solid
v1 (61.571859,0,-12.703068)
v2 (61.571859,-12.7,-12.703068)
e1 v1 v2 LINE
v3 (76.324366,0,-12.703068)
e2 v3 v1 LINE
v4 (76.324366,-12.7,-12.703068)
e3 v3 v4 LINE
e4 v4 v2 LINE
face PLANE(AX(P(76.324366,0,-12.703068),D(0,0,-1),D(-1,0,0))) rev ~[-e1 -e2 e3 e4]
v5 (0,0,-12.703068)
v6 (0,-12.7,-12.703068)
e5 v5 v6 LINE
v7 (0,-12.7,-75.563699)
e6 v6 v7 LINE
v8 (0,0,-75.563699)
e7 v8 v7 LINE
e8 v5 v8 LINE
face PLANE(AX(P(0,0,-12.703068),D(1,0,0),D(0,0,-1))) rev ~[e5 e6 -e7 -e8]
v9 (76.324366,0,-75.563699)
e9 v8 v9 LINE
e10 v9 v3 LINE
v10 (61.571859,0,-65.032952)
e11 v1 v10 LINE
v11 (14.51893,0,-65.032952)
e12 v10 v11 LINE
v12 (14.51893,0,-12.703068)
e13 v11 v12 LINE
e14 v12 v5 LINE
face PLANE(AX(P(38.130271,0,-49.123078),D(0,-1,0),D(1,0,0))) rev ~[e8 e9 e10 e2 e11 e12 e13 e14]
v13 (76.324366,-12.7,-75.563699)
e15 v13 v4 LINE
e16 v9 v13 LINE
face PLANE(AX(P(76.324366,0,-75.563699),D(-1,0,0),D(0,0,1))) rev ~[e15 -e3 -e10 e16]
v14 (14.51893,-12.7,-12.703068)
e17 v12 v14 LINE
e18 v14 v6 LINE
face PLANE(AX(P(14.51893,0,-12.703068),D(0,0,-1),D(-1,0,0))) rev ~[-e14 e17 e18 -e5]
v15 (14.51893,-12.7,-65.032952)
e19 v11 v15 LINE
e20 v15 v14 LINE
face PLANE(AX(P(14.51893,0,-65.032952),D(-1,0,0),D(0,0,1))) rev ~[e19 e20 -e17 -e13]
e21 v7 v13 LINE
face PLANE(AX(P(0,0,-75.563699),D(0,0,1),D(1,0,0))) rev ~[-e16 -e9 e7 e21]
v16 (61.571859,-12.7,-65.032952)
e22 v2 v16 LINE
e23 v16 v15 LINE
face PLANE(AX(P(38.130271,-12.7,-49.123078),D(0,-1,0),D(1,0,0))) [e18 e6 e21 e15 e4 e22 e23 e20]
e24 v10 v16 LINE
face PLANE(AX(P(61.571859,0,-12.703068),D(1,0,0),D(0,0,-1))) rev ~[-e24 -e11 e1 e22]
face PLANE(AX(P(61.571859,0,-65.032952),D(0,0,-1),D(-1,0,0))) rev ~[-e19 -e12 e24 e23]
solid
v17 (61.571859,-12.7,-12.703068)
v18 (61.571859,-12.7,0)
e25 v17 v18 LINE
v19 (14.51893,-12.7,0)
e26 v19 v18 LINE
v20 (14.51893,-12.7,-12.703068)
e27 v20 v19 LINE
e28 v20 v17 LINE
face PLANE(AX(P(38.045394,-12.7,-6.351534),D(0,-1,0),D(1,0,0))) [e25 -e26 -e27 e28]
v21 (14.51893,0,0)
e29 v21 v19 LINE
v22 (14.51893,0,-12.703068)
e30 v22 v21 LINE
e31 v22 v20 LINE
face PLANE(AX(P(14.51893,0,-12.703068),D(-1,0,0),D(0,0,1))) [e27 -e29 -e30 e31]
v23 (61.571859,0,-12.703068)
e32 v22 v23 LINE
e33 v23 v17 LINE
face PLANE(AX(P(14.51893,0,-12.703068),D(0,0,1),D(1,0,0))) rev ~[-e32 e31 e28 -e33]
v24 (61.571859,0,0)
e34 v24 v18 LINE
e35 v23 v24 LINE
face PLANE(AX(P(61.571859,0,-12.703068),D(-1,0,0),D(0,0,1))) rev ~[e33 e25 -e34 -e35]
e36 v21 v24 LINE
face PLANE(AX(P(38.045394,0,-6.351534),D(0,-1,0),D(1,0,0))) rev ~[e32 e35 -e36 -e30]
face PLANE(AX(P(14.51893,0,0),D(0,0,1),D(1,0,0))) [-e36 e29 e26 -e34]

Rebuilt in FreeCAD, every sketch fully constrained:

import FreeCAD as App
import Part
import Sketcher
from FreeCAD import Vector
Q = App.Units.Quantity

doc = App.newDocument("Part")
params = doc.addObject("Spreadsheet::Sheet", "Params")
for row, (alias, value) in enumerate([
    ("pad1_length", "0.5 in"),
    ("pad2_length", "0.5 in"),
], start=1):
    params.set(f"A{row}", alias)
    params.set(f"B{row}", "=" + value)
    params.setAlias(f"B{row}", alias)

body = doc.addObject("PartDesign::Body", "Body")

# Sketch on XZ plane
sketch1 = body.newObject("Sketcher::SketchObject", "Sketch")
sketch1.AttachmentSupport = (doc.getObject("XZ_Plane"), [""])
sketch1.MapMode = "FlatFace"
sketch1.addGeometry(Part.LineSegment(Vector(14.51893, -12.703068, 0), Vector(0, -12.703068, 0)), False)
sketch1.addGeometry(Part.LineSegment(Vector(0, -12.703068, 0), Vector(0, -75.563699, 0)), False)
sketch1.addGeometry(Part.LineSegment(Vector(0, -75.563699, 0), Vector(76.324366, -75.563699, 0)), False)
sketch1.addGeometry(Part.LineSegment(Vector(76.324366, -75.563699, 0), Vector(76.324366, -12.703068, 0)), False)
sketch1.addGeometry(Part.LineSegment(Vector(76.324366, -12.703068, 0), Vector(61.571859, -12.703068, 0)), False)
sketch1.addGeometry(Part.LineSegment(Vector(61.571859, -12.703068, 0), Vector(61.571859, -65.032952, 0)), False)
sketch1.addGeometry(Part.LineSegment(Vector(61.571859, -65.032952, 0), Vector(14.51893, -65.032952, 0)), False)
sketch1.addGeometry(Part.LineSegment(Vector(14.51893, -65.032952, 0), Vector(14.51893, -12.703068, 0)), False)
sketch1.addConstraint(Sketcher.Constraint("Coincident", 0, 2, 1, 1))
sketch1.addConstraint(Sketcher.Constraint("Coincident", 1, 2, 2, 1))
sketch1.addConstraint(Sketcher.Constraint("Coincident", 2, 2, 3, 1))
sketch1.addConstraint(Sketcher.Constraint("Coincident", 3, 2, 4, 1))
sketch1.addConstraint(Sketcher.Constraint("Coincident", 4, 2, 5, 1))
sketch1.addConstraint(Sketcher.Constraint("Coincident", 5, 2, 6, 1))
sketch1.addConstraint(Sketcher.Constraint("Coincident", 6, 2, 7, 1))
sketch1.addConstraint(Sketcher.Constraint("Coincident", 7, 2, 0, 1))
sketch1.addConstraint(Sketcher.Constraint("Horizontal", 0))
sketch1.addConstraint(Sketcher.Constraint("Vertical", 1))
sketch1.addConstraint(Sketcher.Constraint("Horizontal", 2))
sketch1.addConstraint(Sketcher.Constraint("Vertical", 3))
sketch1.addConstraint(Sketcher.Constraint("Horizontal", 4))
sketch1.addConstraint(Sketcher.Constraint("Vertical", 5))
sketch1.addConstraint(Sketcher.Constraint("Horizontal", 6))
sketch1.addConstraint(Sketcher.Constraint("Vertical", 7))
sketch1.addConstraint(Sketcher.Constraint("PointOnObject", 0, 2, -2))
sketch1.addConstraint(Sketcher.Constraint("Horizontal", 0, 2, 3, 2))
sketch1.addConstraint(Sketcher.Constraint("DistanceX", 0, 2, 0, 1, Q("14.51893 mm")))
sketch1.addConstraint(Sketcher.Constraint("DistanceX", 6, 2, 6, 1, Q("47.052929 mm")))
sketch1.addConstraint(Sketcher.Constraint("DistanceY", 1, 2, 1, 1, Q("62.860631 mm")))
sketch1.addConstraint(Sketcher.Constraint("DistanceY", 1, 2, -1, 1, Q("75.563699 mm")))
sketch1.addConstraint(Sketcher.Constraint("DistanceX", 2, 1, 2, 2, Q("76.324366 mm")))
sketch1.addConstraint(Sketcher.Constraint("DistanceY", 5, 2, 5, 1, Q("52.329884 mm")))
pad1 = body.newObject("PartDesign::Pad", "Pad")
pad1.Profile = sketch1
pad1.setExpression("Length", "Params.pad1_length")
body2 = doc.addObject("PartDesign::Body", "Body001")

# Sketch on XZ plane
sketch2 = body2.newObject("Sketcher::SketchObject", "Sketch001")
sketch2.AttachmentSupport = (doc.getObject("XZ_Plane001"), [""])
sketch2.MapMode = "FlatFace"
sketch2.addGeometry(Part.LineSegment(Vector(14.51893, 0, 0), Vector(14.51893, -12.703068, 0)), False)
sketch2.addGeometry(Part.LineSegment(Vector(14.51893, -12.703068, 0), Vector(61.571859, -12.703068, 0)), False)
sketch2.addGeometry(Part.LineSegment(Vector(61.571859, -12.703068, 0), Vector(61.571859, 0, 0)), False)
sketch2.addGeometry(Part.LineSegment(Vector(61.571859, 0, 0), Vector(14.51893, 0, 0)), False)
sketch2.addConstraint(Sketcher.Constraint("Coincident", 0, 2, 1, 1))
sketch2.addConstraint(Sketcher.Constraint("Coincident", 1, 2, 2, 1))
sketch2.addConstraint(Sketcher.Constraint("Coincident", 2, 2, 3, 1))
sketch2.addConstraint(Sketcher.Constraint("Coincident", 3, 2, 0, 1))
sketch2.addConstraint(Sketcher.Constraint("Vertical", 0))
sketch2.addConstraint(Sketcher.Constraint("Horizontal", 1))
sketch2.addConstraint(Sketcher.Constraint("Vertical", 2))
sketch2.addConstraint(Sketcher.Constraint("Horizontal", 3))
sketch2.addConstraint(Sketcher.Constraint("PointOnObject", 2, 2, -1))
sketch2.addConstraint(Sketcher.Constraint("DistanceX", 1, 1, 1, 2, Q("47.052929 mm")))
sketch2.addConstraint(Sketcher.Constraint("DistanceY", 0, 2, 0, 1, Q("12.703068 mm")))
sketch2.addConstraint(Sketcher.Constraint("DistanceX", -1, 1, 0, 2, Q("14.51893 mm")))
pad2 = body2.newObject("PartDesign::Pad", "Pad001")
pad2.Profile = sketch2
pad2.setExpression("Length", "Params.pad2_length")

doc.recompute()
